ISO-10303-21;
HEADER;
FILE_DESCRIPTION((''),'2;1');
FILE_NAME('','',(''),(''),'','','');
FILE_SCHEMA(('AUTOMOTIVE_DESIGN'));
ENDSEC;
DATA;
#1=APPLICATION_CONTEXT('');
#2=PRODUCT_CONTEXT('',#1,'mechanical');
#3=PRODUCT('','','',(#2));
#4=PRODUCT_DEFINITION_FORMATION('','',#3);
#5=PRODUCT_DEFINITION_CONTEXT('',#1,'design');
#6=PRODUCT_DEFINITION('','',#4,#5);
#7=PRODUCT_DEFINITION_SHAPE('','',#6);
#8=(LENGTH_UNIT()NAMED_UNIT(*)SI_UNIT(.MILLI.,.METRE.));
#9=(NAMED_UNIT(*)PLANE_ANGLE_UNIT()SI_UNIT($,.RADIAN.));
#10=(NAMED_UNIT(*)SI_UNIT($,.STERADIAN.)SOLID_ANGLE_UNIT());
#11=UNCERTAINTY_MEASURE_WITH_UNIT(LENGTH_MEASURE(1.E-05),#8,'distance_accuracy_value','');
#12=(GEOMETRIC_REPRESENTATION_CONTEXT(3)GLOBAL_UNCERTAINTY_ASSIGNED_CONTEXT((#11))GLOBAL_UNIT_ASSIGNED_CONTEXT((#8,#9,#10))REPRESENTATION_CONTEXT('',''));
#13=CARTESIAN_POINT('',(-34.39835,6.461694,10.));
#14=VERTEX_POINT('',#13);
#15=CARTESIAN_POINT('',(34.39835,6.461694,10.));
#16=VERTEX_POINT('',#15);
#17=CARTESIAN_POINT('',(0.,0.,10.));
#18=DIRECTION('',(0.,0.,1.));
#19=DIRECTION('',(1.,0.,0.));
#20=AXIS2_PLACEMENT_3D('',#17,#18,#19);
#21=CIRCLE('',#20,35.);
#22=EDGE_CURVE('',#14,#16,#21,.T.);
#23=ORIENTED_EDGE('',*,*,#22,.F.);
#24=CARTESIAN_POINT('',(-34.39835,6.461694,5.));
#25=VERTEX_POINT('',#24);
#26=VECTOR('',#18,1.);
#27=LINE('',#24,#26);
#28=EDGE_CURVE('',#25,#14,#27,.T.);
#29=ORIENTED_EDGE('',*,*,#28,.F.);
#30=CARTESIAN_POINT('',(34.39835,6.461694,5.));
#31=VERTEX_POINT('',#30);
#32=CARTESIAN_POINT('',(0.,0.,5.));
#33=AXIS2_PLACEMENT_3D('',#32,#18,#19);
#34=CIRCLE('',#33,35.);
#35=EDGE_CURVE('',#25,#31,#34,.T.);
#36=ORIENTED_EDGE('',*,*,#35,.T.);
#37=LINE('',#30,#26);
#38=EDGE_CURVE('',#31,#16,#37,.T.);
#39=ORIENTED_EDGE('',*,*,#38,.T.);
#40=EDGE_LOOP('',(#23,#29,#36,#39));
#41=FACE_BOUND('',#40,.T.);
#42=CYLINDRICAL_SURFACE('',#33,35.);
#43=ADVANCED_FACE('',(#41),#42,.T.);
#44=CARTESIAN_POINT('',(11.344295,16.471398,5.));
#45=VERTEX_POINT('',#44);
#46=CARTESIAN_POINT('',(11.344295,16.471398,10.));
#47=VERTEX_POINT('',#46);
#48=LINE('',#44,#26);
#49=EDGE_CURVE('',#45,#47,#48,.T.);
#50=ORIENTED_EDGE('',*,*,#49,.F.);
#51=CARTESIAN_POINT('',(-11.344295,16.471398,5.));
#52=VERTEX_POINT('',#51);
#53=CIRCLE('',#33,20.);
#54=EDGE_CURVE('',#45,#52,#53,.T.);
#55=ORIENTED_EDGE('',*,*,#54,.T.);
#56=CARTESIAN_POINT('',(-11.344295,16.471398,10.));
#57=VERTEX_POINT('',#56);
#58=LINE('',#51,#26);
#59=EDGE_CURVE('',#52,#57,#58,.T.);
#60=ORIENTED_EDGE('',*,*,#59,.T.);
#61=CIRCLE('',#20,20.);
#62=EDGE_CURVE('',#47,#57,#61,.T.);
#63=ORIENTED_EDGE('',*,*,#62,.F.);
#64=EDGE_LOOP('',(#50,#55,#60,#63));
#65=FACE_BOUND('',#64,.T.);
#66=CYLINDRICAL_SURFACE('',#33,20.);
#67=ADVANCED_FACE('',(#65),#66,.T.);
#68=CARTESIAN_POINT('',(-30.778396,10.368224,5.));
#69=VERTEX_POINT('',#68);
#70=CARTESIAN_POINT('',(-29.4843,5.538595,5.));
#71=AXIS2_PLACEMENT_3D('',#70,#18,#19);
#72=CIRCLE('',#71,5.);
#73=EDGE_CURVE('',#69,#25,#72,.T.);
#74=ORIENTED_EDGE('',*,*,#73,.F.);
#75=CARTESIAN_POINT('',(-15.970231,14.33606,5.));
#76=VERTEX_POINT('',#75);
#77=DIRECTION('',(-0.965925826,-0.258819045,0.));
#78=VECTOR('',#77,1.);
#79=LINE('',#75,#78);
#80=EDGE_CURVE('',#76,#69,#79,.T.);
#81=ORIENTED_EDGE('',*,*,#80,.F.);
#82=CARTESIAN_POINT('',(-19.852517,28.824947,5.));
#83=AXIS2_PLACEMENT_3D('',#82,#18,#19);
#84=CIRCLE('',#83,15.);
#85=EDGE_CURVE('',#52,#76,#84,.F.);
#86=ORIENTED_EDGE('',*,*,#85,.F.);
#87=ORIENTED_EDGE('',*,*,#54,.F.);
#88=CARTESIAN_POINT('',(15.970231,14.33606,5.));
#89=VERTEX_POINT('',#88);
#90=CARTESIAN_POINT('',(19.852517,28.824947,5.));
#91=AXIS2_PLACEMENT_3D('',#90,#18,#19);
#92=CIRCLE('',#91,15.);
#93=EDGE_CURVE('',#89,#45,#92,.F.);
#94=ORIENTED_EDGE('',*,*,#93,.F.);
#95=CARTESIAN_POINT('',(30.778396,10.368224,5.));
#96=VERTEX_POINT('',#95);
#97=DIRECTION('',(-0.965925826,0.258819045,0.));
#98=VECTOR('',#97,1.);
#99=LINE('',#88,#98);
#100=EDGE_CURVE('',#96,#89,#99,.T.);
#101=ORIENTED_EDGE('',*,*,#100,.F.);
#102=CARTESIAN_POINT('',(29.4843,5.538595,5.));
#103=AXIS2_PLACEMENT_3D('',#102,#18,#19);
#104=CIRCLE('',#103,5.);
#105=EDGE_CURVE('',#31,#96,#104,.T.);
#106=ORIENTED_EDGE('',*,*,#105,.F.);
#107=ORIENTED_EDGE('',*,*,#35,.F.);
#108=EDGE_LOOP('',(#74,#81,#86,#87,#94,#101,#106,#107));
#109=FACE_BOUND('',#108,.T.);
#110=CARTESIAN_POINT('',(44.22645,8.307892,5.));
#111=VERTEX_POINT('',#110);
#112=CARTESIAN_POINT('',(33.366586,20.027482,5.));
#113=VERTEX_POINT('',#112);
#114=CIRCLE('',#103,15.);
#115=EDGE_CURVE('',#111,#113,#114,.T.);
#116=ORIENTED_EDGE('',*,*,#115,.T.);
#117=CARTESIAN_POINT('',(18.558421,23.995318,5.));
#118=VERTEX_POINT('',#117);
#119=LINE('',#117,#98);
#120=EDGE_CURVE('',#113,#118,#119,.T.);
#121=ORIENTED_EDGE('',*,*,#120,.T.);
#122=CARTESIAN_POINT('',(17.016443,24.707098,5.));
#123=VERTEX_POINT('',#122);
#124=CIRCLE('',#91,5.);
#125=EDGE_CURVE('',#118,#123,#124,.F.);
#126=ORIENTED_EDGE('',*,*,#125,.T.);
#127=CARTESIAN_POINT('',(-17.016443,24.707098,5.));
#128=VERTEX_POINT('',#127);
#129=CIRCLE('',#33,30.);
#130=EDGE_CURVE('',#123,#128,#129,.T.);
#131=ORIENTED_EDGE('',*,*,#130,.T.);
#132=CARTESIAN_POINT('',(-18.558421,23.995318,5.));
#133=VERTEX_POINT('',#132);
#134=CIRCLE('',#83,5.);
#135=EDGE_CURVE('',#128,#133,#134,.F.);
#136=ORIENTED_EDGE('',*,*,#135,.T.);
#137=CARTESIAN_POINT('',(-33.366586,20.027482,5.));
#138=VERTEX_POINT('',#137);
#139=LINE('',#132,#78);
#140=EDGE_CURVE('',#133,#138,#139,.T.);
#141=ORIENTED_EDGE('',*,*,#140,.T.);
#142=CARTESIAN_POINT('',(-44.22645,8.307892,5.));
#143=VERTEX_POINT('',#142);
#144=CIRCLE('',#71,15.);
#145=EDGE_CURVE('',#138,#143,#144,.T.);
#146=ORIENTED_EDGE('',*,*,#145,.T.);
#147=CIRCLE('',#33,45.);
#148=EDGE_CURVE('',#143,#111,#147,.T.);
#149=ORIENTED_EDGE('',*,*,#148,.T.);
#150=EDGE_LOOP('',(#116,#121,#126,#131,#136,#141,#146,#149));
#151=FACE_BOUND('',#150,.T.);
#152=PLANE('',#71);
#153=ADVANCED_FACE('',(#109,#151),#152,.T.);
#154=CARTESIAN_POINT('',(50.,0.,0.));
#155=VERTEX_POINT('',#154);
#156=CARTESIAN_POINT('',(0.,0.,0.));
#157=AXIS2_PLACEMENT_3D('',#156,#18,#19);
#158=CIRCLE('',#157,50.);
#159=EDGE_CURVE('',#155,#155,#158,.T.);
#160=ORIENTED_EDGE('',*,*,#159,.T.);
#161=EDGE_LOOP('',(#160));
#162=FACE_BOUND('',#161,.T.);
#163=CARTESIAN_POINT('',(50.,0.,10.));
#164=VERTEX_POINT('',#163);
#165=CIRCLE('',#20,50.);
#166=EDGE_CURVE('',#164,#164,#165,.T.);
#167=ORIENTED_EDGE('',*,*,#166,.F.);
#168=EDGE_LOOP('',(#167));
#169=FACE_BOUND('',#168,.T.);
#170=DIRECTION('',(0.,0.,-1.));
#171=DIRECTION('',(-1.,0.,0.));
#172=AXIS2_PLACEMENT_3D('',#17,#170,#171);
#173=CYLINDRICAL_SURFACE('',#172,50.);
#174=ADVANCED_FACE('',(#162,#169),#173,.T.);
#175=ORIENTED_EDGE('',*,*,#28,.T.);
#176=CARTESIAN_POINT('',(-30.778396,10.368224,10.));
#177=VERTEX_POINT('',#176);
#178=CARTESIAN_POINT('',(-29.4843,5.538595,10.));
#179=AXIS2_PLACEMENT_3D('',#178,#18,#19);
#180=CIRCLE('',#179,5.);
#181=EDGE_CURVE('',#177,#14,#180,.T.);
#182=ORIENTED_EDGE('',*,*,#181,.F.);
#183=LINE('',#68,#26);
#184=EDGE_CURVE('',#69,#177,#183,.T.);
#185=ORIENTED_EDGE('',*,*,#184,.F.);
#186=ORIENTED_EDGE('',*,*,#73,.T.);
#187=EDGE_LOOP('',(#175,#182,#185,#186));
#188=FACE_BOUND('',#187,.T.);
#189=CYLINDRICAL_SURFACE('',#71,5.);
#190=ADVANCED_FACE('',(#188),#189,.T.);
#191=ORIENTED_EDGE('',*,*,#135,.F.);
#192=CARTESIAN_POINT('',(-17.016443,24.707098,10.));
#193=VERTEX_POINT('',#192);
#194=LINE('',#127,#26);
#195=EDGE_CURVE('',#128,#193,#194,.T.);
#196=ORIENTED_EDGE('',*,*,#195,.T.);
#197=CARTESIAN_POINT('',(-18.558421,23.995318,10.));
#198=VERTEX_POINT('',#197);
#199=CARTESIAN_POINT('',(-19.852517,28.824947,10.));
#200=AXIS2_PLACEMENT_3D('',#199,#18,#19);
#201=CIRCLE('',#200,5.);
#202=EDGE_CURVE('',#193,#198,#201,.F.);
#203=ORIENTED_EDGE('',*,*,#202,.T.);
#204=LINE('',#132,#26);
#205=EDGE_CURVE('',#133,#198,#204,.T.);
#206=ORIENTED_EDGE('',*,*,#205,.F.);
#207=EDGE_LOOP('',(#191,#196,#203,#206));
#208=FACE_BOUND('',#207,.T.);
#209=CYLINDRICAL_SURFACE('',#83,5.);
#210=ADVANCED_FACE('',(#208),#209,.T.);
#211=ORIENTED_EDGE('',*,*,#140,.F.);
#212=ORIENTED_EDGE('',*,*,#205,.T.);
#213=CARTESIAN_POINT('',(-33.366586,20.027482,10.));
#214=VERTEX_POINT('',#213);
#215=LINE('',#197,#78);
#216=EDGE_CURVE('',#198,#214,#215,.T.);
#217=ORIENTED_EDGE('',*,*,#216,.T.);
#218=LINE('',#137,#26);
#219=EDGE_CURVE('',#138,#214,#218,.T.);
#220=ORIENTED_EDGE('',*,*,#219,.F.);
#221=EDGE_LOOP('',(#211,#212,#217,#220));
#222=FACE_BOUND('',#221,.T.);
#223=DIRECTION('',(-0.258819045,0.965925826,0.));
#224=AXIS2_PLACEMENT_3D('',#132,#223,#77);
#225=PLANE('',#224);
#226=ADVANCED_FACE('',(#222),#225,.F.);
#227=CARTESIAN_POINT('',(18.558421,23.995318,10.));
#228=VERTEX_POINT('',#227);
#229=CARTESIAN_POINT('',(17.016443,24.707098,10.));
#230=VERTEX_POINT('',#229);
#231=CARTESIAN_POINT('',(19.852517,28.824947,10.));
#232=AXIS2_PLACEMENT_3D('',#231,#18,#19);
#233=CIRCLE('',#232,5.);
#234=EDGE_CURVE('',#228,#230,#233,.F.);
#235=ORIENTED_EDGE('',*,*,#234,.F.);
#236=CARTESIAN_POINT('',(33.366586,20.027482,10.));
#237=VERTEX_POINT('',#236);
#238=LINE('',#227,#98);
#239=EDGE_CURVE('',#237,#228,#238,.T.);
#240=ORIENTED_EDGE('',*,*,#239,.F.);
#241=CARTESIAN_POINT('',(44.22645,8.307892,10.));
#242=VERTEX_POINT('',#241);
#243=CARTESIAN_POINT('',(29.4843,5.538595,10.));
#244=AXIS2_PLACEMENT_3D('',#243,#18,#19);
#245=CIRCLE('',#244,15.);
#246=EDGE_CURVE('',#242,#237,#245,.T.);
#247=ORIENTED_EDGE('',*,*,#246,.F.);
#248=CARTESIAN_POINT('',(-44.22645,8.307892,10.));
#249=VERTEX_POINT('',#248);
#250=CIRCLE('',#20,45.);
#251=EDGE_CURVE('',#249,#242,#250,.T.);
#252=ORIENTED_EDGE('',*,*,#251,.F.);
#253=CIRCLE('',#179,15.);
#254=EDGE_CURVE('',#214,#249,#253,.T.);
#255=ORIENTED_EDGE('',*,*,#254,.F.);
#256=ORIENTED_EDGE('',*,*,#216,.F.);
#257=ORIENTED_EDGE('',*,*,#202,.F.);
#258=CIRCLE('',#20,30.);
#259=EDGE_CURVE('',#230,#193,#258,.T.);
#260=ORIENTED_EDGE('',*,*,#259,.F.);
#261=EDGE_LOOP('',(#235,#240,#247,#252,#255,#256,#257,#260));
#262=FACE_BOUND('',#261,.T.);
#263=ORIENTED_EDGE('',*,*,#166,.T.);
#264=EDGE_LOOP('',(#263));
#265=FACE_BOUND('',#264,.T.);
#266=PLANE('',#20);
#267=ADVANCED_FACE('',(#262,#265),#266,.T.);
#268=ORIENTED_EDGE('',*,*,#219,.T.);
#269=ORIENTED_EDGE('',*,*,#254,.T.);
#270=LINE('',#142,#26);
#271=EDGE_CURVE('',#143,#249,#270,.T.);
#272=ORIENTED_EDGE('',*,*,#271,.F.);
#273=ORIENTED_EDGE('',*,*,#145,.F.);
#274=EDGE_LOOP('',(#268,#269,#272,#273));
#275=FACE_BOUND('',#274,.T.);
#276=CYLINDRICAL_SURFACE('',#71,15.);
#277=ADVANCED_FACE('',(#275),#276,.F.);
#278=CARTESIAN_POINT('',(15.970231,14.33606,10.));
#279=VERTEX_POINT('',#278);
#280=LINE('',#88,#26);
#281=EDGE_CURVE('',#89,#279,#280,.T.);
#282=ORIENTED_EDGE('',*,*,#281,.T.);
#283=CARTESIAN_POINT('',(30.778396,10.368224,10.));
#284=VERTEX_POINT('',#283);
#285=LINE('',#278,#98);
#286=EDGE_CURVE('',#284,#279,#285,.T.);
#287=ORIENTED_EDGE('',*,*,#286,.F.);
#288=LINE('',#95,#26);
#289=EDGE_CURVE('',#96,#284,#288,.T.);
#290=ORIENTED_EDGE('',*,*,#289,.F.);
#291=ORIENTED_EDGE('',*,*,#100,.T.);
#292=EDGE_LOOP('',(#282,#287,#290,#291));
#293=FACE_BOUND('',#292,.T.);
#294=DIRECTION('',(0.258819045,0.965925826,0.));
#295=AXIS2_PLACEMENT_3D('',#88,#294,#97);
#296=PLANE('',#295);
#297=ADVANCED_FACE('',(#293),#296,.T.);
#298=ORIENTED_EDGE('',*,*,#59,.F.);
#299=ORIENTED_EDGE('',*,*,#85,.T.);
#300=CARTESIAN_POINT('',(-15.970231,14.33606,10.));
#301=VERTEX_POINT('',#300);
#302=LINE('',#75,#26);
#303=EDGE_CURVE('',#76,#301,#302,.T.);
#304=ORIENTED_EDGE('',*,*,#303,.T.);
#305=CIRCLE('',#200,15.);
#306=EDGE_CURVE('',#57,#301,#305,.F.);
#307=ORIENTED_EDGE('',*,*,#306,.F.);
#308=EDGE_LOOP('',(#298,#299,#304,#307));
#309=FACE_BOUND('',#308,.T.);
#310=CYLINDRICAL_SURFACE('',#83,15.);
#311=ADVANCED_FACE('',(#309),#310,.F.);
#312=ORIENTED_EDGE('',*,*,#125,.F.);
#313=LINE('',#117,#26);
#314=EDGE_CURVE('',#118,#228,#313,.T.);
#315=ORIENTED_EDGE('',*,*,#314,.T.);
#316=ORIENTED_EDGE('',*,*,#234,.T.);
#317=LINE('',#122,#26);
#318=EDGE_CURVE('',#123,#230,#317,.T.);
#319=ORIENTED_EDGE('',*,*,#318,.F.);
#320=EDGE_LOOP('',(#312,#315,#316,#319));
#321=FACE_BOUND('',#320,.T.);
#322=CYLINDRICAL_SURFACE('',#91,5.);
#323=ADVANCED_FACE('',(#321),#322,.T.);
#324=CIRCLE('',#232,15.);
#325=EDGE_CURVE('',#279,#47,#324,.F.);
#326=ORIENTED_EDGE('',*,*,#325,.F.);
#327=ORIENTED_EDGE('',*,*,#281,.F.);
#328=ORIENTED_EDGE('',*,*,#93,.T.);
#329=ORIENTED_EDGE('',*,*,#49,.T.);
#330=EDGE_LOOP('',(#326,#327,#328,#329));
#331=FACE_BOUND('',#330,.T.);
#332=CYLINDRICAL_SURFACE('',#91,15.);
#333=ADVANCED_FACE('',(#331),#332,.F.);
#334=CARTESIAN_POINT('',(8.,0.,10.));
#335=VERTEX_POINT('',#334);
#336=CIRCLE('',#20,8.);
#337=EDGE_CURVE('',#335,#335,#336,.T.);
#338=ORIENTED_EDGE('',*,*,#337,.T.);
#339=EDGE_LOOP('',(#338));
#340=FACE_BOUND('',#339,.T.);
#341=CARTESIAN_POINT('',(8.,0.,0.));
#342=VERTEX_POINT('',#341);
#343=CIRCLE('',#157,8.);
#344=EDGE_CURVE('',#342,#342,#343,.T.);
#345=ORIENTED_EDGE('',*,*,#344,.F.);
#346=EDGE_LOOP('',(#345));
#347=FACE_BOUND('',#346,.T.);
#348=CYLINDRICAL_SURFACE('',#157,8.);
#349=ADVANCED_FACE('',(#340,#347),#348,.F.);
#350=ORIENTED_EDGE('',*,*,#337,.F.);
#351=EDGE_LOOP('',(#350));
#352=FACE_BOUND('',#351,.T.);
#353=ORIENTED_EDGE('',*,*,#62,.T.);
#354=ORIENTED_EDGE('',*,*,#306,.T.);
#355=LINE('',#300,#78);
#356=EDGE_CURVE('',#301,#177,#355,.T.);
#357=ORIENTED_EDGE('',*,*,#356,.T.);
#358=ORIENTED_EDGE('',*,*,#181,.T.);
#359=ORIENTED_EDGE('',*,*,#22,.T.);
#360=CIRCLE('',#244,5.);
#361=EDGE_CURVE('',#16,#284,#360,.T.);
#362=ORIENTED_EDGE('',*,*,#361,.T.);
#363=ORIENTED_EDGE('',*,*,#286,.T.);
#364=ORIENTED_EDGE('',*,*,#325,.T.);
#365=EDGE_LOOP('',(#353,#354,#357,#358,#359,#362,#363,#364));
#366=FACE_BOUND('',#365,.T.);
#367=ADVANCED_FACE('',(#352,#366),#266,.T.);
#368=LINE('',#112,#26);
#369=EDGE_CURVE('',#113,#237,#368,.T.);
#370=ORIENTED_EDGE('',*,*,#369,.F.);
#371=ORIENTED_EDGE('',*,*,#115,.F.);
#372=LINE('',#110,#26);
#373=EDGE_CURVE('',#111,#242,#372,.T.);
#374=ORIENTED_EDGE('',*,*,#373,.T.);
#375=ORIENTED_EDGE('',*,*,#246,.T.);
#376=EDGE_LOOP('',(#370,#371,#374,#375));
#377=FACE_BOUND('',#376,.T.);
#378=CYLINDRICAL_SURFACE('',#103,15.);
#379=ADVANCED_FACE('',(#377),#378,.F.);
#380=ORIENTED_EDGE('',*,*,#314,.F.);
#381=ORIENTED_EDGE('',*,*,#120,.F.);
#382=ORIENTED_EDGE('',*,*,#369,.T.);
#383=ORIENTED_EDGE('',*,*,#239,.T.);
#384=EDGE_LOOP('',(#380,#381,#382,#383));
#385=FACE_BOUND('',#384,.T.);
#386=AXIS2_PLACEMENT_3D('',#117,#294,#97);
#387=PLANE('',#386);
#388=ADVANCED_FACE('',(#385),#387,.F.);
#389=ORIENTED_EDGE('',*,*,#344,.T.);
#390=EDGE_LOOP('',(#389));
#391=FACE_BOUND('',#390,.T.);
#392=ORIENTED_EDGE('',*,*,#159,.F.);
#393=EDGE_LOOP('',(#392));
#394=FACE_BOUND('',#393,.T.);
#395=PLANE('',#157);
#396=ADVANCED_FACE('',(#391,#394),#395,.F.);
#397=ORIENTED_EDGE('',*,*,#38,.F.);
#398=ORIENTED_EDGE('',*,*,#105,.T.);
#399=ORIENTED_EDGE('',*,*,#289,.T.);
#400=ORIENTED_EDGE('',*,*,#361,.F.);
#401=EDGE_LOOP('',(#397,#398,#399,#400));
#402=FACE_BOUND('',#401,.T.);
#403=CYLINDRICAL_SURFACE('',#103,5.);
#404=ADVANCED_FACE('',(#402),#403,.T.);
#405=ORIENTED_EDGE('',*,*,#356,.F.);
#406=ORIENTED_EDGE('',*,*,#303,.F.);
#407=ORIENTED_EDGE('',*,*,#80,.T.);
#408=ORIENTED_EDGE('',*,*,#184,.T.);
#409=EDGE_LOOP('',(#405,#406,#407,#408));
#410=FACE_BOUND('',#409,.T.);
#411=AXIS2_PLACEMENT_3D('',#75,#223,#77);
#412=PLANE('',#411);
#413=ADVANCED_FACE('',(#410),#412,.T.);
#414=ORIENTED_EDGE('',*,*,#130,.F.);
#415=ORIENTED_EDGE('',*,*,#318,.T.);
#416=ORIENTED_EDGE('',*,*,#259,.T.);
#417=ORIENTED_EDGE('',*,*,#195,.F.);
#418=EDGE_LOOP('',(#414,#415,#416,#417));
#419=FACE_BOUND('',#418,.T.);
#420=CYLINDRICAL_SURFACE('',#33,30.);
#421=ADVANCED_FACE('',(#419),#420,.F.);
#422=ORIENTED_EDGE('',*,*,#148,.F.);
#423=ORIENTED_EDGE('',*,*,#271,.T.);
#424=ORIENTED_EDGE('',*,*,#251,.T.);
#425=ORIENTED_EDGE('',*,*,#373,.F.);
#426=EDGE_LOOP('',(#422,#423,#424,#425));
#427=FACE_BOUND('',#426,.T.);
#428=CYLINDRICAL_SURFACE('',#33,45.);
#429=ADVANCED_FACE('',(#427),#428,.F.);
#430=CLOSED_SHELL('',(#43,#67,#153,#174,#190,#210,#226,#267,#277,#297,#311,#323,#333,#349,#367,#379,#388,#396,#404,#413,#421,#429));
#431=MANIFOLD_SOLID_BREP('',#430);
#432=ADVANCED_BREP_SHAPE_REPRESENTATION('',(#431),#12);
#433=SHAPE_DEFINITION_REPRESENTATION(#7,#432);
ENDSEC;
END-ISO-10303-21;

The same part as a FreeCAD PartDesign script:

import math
import FreeCAD as App
import Part
import Sketcher
Q = App.Units.Quantity

doc = App.newDocument("Part")
body = doc.addObject("PartDesign::Body", "Body")

# Sketch on XY plane
sketch1 = body.newObject("Sketcher::SketchObject", "Sketch")
sketch1.AttachmentSupport = (doc.getObject("XY_Plane"), [""])
sketch1.MapMode = "FlatFace"
sketch1.addGeometry(Part.Circle(App.Vector(0, 0, 0), App.Vector(0, 0, 1), 50), False)
sketch1.addConstraint([
    Sketcher.Constraint("Coincident", 0, 3, -1, 1),
    Sketcher.Constraint("Diameter", 0, Q("100 mm")),
])
pad1 = body.newObject("PartDesign::Pad", "Pad")
pad1.Profile = sketch1
pad1.Length = 10

# Sketch on XY plane
sketch2 = body.newObject("Sketcher::SketchObject", "Sketch001")
sketch2.AttachmentSupport = (doc.getObject("XY_Plane"), [""])
sketch2.MapMode = "FlatFace"
sketch2.AttachmentOffset = App.Placement(App.Vector(0, 0, 10), App.Rotation())
sketch2.addGeometry([
    Part.ArcOfCircle(Part.Circle(App.Vector(0, 0, 0), App.Vector(0, 0, 1), 45), math.radians(169), math.radians(371)),  # 0
    Part.ArcOfCircle(Part.Circle(App.Vector(29.5, 5.5, 0), App.Vector(0, 0, 1), 15), math.radians(11), math.radians(75)),  # 1
    Part.LineSegment(App.Vector(33.4, 20, 0), App.Vector(18.6, 24, 0)),  # 2
    Part.ArcOfCircle(Part.Circle(App.Vector(19.9, 28.8, 0), App.Vector(0, 0, 1), 5), math.radians(-124.56), math.radians(-105)),  # 3
    Part.ArcOfCircle(Part.Circle(App.Vector(0, 0, 0), App.Vector(0, 0, 1), 30), math.radians(55), math.radians(125)),  # 4
    Part.ArcOfCircle(Part.Circle(App.Vector(-19.9, 28.8, 0), App.Vector(0, 0, 1), 5), math.radians(-75), math.radians(-55.44)),  # 5
    Part.LineSegment(App.Vector(-18.6, 24, 0), App.Vector(-33.4, 20, 0)),  # 6
    Part.ArcOfCircle(Part.Circle(App.Vector(-29.5, 5.5, 0), App.Vector(0, 0, 1), 15), math.radians(105), math.radians(169)),  # 7
    Part.ArcOfCircle(Part.Circle(App.Vector(0, 0, 0), App.Vector(0, 0, 1), 35), math.radians(169), math.radians(371)),  # 8
    Part.ArcOfCircle(Part.Circle(App.Vector(-29.5, 5.5, 0), App.Vector(0, 0, 1), 5), math.radians(105), math.radians(169)),  # 9
    Part.LineSegment(App.Vector(-30.8, 10.4, 0), App.Vector(-16, 14.3, 0)),  # 10
    Part.ArcOfCircle(Part.Circle(App.Vector(-19.9, 28.8, 0), App.Vector(0, 0, 1), 15), math.radians(-75), math.radians(-55.44)),  # 11
    Part.ArcOfCircle(Part.Circle(App.Vector(0, 0, 0), App.Vector(0, 0, 1), 20), math.radians(55), math.radians(125)),  # 12
    Part.ArcOfCircle(Part.Circle(App.Vector(19.9, 28.8, 0), App.Vector(0, 0, 1), 15), math.radians(-124.56), math.radians(-105)),  # 13
    Part.LineSegment(App.Vector(16, 14.3, 0), App.Vector(30.8, 10.4, 0)),  # 14
    Part.ArcOfCircle(Part.Circle(App.Vector(29.5, 5.5, 0), App.Vector(0, 0, 1), 5), math.radians(11), math.radians(75)),  # 15
], False)
sketch2.addConstraint([
    Sketcher.Constraint("Tangent", 0, 2, 1, 1),
    Sketcher.Constraint("Tangent", 1, 2, 2, 1),
    Sketcher.Constraint("Tangent", 2, 2, 3, 2),
    Sketcher.Constraint("Tangent", 3, 1, 4, 1),
    Sketcher.Constraint("Tangent", 4, 2, 5, 2),
    Sketcher.Constraint("Tangent", 5, 1, 6, 1),
    Sketcher.Constraint("Tangent", 6, 2, 7, 1),
    Sketcher.Constraint("Tangent", 7, 2, 0, 1),
    Sketcher.Constraint("Tangent", 8, 1, 9, 2),
    Sketcher.Constraint("Tangent", 9, 1, 10, 1),
    Sketcher.Constraint("Tangent", 10, 2, 11, 1),
    Sketcher.Constraint("Tangent", 11, 2, 12, 2),
    Sketcher.Constraint("Tangent", 12, 1, 13, 1),
    Sketcher.Constraint("Tangent", 13, 2, 14, 1),
    Sketcher.Constraint("Tangent", 14, 2, 15, 2),
    Sketcher.Constraint("Tangent", 15, 1, 8, 2),
    Sketcher.Constraint("Coincident", 0, 3, -1, 1),
    Sketcher.Constraint("Coincident", 4, 3, -1, 1),
    Sketcher.Constraint("Coincident", 8, 3, -1, 1),
    Sketcher.Constraint("Coincident", 12, 3, -1, 1),
    Sketcher.Constraint("Coincident", 9, 3, 7, 3),
    Sketcher.Constraint("Coincident", 11, 3, 5, 3),
    Sketcher.Constraint("Coincident", 13, 3, 3, 3),
    Sketcher.Constraint("Coincident", 15, 3, 1, 3),
    Sketcher.Constraint("Equal", 3, 5),
    Sketcher.Constraint("Equal", 1, 7),
    Sketcher.Constraint("Equal", 5, 9),
    Sketcher.Constraint("Equal", 7, 11),
    Sketcher.Constraint("Symmetric", 2, 2, 5, 1, -2),
    Sketcher.Constraint("Radius", 0, Q("45 mm")),
    Sketcher.Constraint("Radius", 1, Q("15 mm")),
    Sketcher.Constraint("Radius", 3, Q("5 mm")),
    Sketcher.Constraint("Radius", 4, Q("30 mm")),
    Sketcher.Constraint("Angle", 2, Q("165 deg")),
    Sketcher.Constraint("DistanceX", -1, 1, 1, 3, Q("29.4843 mm")),
])
pocket1 = body.newObject("PartDesign::Pocket", "Pocket")
pocket1.Profile = sketch2
pocket1.Length = 5

# Sketch on XY plane
sketch3 = body.newObject("Sketcher::SketchObject", "Sketch002")
sketch3.AttachmentSupport = (doc.getObject("XY_Plane"), [""])
sketch3.MapMode = "FlatFace"
sketch3.AttachmentOffset = App.Placement(App.Vector(0, 0, 10), App.Rotation())
sketch3.addGeometry(Part.Circle(App.Vector(0, 0, 0), App.Vector(0, 0, 1), 8), False)
sketch3.addConstraint([
    Sketcher.Constraint("Coincident", 0, 3, -1, 1),
    Sketcher.Constraint("Diameter", 0, Q("16 mm")),
])
pocket2 = body.newObject("PartDesign::Pocket", "Pocket001")
pocket2.Profile = sketch3
pocket2.Type = "ThroughAll"

doc.recompute()
